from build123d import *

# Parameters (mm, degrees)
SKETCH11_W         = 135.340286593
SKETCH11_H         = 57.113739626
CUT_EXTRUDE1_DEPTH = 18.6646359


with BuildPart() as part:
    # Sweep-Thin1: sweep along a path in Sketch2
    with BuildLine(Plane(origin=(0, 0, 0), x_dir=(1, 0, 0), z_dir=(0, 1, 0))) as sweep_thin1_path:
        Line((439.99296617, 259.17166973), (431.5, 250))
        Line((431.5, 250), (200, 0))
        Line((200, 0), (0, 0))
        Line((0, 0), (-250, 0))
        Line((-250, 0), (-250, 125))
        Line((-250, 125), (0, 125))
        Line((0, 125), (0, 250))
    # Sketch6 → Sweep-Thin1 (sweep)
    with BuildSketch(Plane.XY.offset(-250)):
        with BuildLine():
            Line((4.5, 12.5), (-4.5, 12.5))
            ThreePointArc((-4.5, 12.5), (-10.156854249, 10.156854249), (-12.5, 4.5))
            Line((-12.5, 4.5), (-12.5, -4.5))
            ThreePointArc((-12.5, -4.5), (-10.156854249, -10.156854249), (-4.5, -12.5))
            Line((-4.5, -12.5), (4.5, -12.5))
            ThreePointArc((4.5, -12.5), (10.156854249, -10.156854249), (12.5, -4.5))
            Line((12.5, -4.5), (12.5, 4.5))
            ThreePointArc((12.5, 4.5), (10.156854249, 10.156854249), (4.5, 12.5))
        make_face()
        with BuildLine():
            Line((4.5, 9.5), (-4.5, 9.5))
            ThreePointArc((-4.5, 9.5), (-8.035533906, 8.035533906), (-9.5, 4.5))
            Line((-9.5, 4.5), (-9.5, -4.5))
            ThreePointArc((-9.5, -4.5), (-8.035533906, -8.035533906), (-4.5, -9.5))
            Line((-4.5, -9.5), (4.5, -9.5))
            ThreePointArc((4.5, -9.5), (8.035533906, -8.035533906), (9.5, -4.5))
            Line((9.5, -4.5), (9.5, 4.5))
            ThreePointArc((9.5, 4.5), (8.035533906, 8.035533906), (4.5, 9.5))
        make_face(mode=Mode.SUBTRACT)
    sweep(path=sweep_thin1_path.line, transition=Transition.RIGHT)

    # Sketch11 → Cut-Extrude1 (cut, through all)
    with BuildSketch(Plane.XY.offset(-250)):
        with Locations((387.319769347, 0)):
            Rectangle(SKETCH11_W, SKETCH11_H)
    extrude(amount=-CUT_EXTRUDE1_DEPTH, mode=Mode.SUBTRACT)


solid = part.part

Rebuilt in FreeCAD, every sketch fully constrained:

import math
import FreeCAD as App
import Part
import Sketcher
from FreeCAD import Vector
Q = App.Units.Quantity


def add_polygon(sketch, points):
    """Adds a closed chain of lines whose ends are joined by coincident constraints."""
    first, n = sketch.GeometryCount, len(points)
    for a, b in zip(points, points[1:] + points[:1]):
        sketch.addGeometry(Part.LineSegment(App.Vector(*a, 0), App.Vector(*b, 0)), False)
    for i in range(n):
        sketch.addConstraint(Sketcher.Constraint("Coincident", first + i, 2, first + (i + 1) % n, 1))

doc = App.newDocument("Part")
body = doc.addObject("PartDesign::Body", "Body")

# Sketch on XY plane
sketch1 = doc.addObject("Sketcher::SketchObject", "Sketch")
body.addObject(sketch1)
sketch1.AttachmentSupport = (doc.XY_Plane, [""])
sketch1.MapMode = "FlatFace"
sketch1.AttachmentOffset = App.Placement(Vector(0, 0, -250), App.Rotation())
sketch1.addGeometry([
    Part.LineSegment(Vector(4, 12, 0), Vector(-4, 12, 0)),  # 0
    Part.ArcOfCircle(Part.Circle(Vector(-4, 4, 0), Vector(0, 0, 1), 8), math.radians(90), math.radians(180)),  # 1
    Part.LineSegment(Vector(-12, 4, 0), Vector(-12, -4, 0)),  # 2
    Part.ArcOfCircle(Part.Circle(Vector(-4, -4, 0), Vector(0, 0, 1), 8), math.radians(-180), math.radians(-90)),  # 3
    Part.LineSegment(Vector(-4, -12, 0), Vector(4, -12, 0)),  # 4
    Part.ArcOfCircle(Part.Circle(Vector(4, -4, 0), Vector(0, 0, 1), 8), math.radians(-90), math.radians(0)),  # 5
    Part.LineSegment(Vector(12, -4, 0), Vector(12, 4, 0)),  # 6
    Part.ArcOfCircle(Part.Circle(Vector(4, 4, 0), Vector(0, 0, 1), 8), math.radians(0), math.radians(90)),  # 7
    Part.LineSegment(Vector(-4, 10, 0), Vector(4, 10, 0)),  # 8
    Part.ArcOfCircle(Part.Circle(Vector(4, 4, 0), Vector(0, 0, 1), 5), math.radians(0), math.radians(90)),  # 9
    Part.LineSegment(Vector(10, 4, 0), Vector(10, -4, 0)),  # 10
    Part.ArcOfCircle(Part.Circle(Vector(4, -4, 0), Vector(0, 0, 1), 5), math.radians(-90), math.radians(0)),  # 11
    Part.LineSegment(Vector(4, -10, 0), Vector(-4, -10, 0)),  # 12
    Part.ArcOfCircle(Part.Circle(Vector(-4, -4, 0), Vector(0, 0, 1), 5), math.radians(180), math.radians(270)),  # 13
    Part.LineSegment(Vector(-10, -4, 0), Vector(-10, 4, 0)),  # 14
    Part.ArcOfCircle(Part.Circle(Vector(-4, 4, 0), Vector(0, 0, 1), 5), math.radians(90), math.radians(180)),  # 15
], False)
sketch1.addConstraint([
    Sketcher.Constraint("Tangent", 0, 2, 1, 1),
    Sketcher.Constraint("Tangent", 1, 2, 2, 1),
    Sketcher.Constraint("Tangent", 2, 2, 3, 1),
    Sketcher.Constraint("Tangent", 3, 2, 4, 1),
    Sketcher.Constraint("Tangent", 4, 2, 5, 1),
    Sketcher.Constraint("Tangent", 5, 2, 6, 1),
    Sketcher.Constraint("Tangent", 6, 2, 7, 1),
    Sketcher.Constraint("Tangent", 7, 2, 0, 1),
    Sketcher.Constraint("Tangent", 8, 2, 9, 2),
    Sketcher.Constraint("Tangent", 9, 1, 10, 1),
    Sketcher.Constraint("Tangent", 10, 2, 11, 2),
    Sketcher.Constraint("Tangent", 11, 1, 12, 1),
    Sketcher.Constraint("Tangent", 12, 2, 13, 2),
    Sketcher.Constraint("Tangent", 13, 1, 14, 1),
    Sketcher.Constraint("Tangent", 14, 2, 15, 2),
    Sketcher.Constraint("Tangent", 15, 1, 8, 1),
    Sketcher.Constraint("Horizontal", 0),
    Sketcher.Constraint("Vertical", 2),
    Sketcher.Constraint("Horizontal", 4),
    Sketcher.Constraint("Vertical", 6),
    Sketcher.Constraint("Horizontal", 8),
    Sketcher.Constraint("Vertical", 10),
    Sketcher.Constraint("Horizontal", 12),
    Sketcher.Constraint("Vertical", 14),
    Sketcher.Constraint("Coincident", 9, 3, 7, 3),
    Sketcher.Constraint("Coincident", 11, 3, 5, 3),
    Sketcher.Constraint("Coincident", 13, 3, 3, 3),
    Sketcher.Constraint("Equal", 1, 3),
    Sketcher.Constraint("Equal", 3, 5),
    Sketcher.Constraint("Equal", 5, 7),
    Sketcher.Constraint("Equal", 13, 15),
    Sketcher.Constraint("Symmetric", 1, 3, 5, 3, -1, 1),
    Sketcher.Constraint("Equal", 12, 2),
    Sketcher.Constraint("Radius", 1, Q("8 mm")),
    Sketcher.Constraint("Radius", 9, Q("5 mm")),
    Sketcher.Constraint("DistanceX", 0, 2, 0, 1, Q("9 mm")),
])

# Sketch on XZ plane
sketch2 = doc.addObject("Sketcher::SketchObject", "Sketch001")
body.addObject(sketch2)
sketch2.AttachmentSupport = (doc.XZ_Plane, [""])
sketch2.MapMode = "FlatFace"
sketch2.addGeometry([
    Part.LineSegment(Vector(440, -259, 0), Vector(432, -250, 0)),  # 0
    Part.LineSegment(Vector(432, -250, 0), Vector(200, 0, 0)),  # 1
    Part.LineSegment(Vector(200, 0, 0), Vector(-250, 0, 0)),  # 2
    Part.LineSegment(Vector(-250, 0, 0), Vector(-250, -125, 0)),  # 3
    Part.LineSegment(Vector(-250, -125, 0), Vector(0, -125, 0)),  # 4
    Part.LineSegment(Vector(0, -125, 0), Vector(0, -250, 0)),  # 5
], False)
sketch2.addConstraint([
    Sketcher.Constraint("Coincident", 0, 2, 1, 1),
    Sketcher.Constraint("Coincident", 1, 2, 2, 1),
    Sketcher.Constraint("Coincident", 2, 2, 3, 1),
    Sketcher.Constraint("Coincident", 3, 2, 4, 1),
    Sketcher.Constraint("Coincident", 4, 2, 5, 1),
    Sketcher.Constraint("Horizontal", 2),
    Sketcher.Constraint("Vertical", 3),
    Sketcher.Constraint("Horizontal", 4),
    Sketcher.Constraint("Vertical", 5),
    Sketcher.Constraint("PointOnObject", 1, 2, -1),
    Sketcher.Constraint("PointOnObject", 4, 2, -2),
    Sketcher.Constraint("Parallel", 0, 1),
    Sketcher.Constraint("Horizontal", 0, 2, 5, 2),
    Sketcher.Constraint("Equal", 3, 5),
    Sketcher.Constraint("DistanceX", 2, 2, 2, 1, Q("450 mm")),
    Sketcher.Constraint("DistanceX", 4, 1, 4, 2, Q("250 mm")),
    Sketcher.Constraint("DistanceY", 3, 2, 3, 1, Q("125 mm")),
    Sketcher.Constraint("Distance", 0, Q("12.5 mm")),
    Sketcher.Constraint("DistanceX", -1, 1, 0, 2, Q("431.5 mm")),
])
doc.recompute()

additivepipe = doc.addObject("PartDesign::AdditivePipe", "AdditivePipe")
body.addObject(additivepipe)
additivepipe.Profile = sketch1
additivepipe.Spine = (sketch2, ["Edge1", "Edge2", "Edge3", "Edge4", "Edge5", "Edge6"])
additivepipe.Transition = "Right corner"

# Sketch on XY plane
sketch3 = doc.addObject("Sketcher::SketchObject", "Sketch002")
body.addObject(sketch3)
sketch3.AttachmentSupport = (doc.XY_Plane, [""])
sketch3.MapMode = "FlatFace"
sketch3.AttachmentOffset = App.Placement(Vector(0, 0, -250), App.Rotation())
add_polygon(sketch3, [(320, 29), (320, -29), (455, -29), (455, 29)])  # lines 0-3
sketch3.addConstraint([
    Sketcher.Constraint("Vertical", 0),
    Sketcher.Constraint("Horizontal", 1),
    Sketcher.Constraint("Vertical", 2),
    Sketcher.Constraint("Horizontal", 3),
    Sketcher.Constraint("DistanceY", 0, 2, 0, 1, Q("57.11374 mm")),
    Sketcher.Constraint("DistanceX", 1, 1, 1, 2, Q("135.340287 mm")),
    Sketcher.Constraint("DistanceY", 0, 2, -1, 1, Q("28.55687 mm")),
    Sketcher.Constraint("DistanceX", -1, 1, 0, 2, Q("319.649626 mm")),
])
pocket1 = doc.addObject("PartDesign::Pocket", "Pocket")
body.addObject(pocket1)
pocket1.Profile = sketch3
pocket1.Type = "ThroughAll"

doc.recompute()
